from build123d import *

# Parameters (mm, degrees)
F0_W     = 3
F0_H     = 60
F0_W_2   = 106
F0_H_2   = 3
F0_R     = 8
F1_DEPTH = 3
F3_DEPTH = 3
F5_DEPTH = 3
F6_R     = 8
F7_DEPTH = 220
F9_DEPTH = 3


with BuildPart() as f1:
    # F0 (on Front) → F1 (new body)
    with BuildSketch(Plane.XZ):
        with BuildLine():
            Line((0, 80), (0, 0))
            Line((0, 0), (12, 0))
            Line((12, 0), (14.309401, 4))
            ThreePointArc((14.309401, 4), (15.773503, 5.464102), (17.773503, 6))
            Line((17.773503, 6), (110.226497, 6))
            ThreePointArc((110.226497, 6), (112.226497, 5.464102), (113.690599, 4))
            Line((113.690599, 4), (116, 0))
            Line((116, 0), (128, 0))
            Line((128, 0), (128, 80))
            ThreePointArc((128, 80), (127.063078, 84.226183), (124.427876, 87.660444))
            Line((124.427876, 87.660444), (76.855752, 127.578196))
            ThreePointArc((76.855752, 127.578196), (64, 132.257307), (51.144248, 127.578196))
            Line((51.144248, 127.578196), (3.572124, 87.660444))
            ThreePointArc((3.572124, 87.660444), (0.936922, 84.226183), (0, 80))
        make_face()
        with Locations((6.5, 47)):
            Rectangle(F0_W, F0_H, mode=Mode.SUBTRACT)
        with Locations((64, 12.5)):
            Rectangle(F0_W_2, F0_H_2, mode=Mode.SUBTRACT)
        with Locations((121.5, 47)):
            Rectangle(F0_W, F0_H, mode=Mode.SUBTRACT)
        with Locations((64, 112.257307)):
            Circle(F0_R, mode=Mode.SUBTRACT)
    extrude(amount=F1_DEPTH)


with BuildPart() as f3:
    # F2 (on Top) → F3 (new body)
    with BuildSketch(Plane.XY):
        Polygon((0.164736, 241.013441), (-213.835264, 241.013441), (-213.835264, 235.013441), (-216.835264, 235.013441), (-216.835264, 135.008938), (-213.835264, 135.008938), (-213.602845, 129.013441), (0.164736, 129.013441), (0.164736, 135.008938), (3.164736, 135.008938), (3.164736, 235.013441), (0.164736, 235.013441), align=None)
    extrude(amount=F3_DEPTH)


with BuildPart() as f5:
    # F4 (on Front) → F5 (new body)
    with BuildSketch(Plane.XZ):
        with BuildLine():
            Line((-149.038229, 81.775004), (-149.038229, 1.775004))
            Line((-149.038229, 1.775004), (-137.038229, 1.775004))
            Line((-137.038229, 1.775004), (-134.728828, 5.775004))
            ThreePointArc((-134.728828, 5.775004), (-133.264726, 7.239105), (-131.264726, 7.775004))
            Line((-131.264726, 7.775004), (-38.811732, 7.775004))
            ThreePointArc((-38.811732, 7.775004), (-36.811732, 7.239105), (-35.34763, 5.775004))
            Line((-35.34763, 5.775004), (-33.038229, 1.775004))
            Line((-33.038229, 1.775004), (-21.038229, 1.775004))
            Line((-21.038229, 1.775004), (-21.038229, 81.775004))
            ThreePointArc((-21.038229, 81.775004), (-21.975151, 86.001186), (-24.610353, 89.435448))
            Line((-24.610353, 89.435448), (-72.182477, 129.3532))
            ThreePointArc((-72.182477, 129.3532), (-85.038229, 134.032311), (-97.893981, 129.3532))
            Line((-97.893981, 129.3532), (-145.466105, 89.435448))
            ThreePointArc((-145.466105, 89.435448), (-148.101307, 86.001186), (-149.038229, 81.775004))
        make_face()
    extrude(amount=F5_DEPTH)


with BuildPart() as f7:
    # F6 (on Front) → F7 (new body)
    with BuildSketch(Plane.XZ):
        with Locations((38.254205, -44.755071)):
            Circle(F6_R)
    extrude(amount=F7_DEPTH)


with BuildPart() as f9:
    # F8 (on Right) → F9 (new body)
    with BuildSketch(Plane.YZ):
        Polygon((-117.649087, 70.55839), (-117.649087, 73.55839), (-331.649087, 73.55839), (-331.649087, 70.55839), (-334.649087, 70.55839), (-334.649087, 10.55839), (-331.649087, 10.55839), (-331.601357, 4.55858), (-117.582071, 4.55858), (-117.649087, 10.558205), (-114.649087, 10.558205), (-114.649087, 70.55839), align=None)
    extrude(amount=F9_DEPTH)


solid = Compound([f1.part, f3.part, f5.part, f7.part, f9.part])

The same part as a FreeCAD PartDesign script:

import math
import FreeCAD as App
import Part
import Sketcher
from FreeCAD import Vector
Q = App.Units.Quantity


def add_polygon(sketch, points):
    """Adds a closed chain of lines whose ends are joined by coincident constraints."""
    first, n = sketch.GeometryCount, len(points)
    for a, b in zip(points, points[1:] + points[:1]):
        sketch.addGeometry(Part.LineSegment(App.Vector(*a, 0), App.Vector(*b, 0)), False)
    for i in range(n):
        sketch.addConstraint(Sketcher.Constraint("Coincident", first + i, 2, first + (i + 1) % n, 1))

doc = App.newDocument("Part")
body = doc.addObject("PartDesign::Body", "Body")

# Sketch on XZ plane
sketch1 = body.newObject("Sketcher::SketchObject", "Sketch")
sketch1.AttachmentSupport = (doc.getObject("XZ_Plane"), [""])
sketch1.MapMode = "FlatFace"
sketch1.addGeometry(Part.LineSegment(Vector(0, 80, 0), Vector(0, 0, 0)), False)  # 0
sketch1.addGeometry(Part.LineSegment(Vector(0, 0, 0), Vector(12, 0, 0)), False)  # 1
sketch1.addGeometry(Part.LineSegment(Vector(12, 0, 0), Vector(14.3, 4, 0)), False)  # 2
sketch1.addGeometry(Part.ArcOfCircle(Part.Circle(Vector(17.8, 2, 0), Vector(0, 0, 1), 4), math.radians(90), math.radians(150)), False)  # 3
sketch1.addGeometry(Part.LineSegment(Vector(17.8, 6, 0), Vector(110.2, 6, 0)), False)  # 4
sketch1.addGeometry(Part.ArcOfCircle(Part.Circle(Vector(110.2, 2, 0), Vector(0, 0, 1), 4), math.radians(30), math.radians(90)), False)  # 5
sketch1.addGeometry(Part.LineSegment(Vector(113.7, 4, 0), Vector(116, 0, 0)), False)  # 6
sketch1.addGeometry(Part.LineSegment(Vector(116, 0, 0), Vector(128, 0, 0)), False)  # 7
sketch1.addGeometry(Part.LineSegment(Vector(128, 0, 0), Vector(128, 80, 0)), False)  # 8
sketch1.addGeometry(Part.ArcOfCircle(Part.Circle(Vector(118, 80, 0), Vector(0, 0, 1), 10), math.radians(0), math.radians(50)), False)  # 9
sketch1.addGeometry(Part.LineSegment(Vector(124.4, 87.7, 0), Vector(76.9, 127.6, 0)), False)  # 10
sketch1.addGeometry(Part.ArcOfCircle(Part.Circle(Vector(64, 112.3, 0), Vector(0, 0, 1), 20), math.radians(50), math.radians(130)), False)  # 11
sketch1.addGeometry(Part.LineSegment(Vector(51.1, 127.6, 0), Vector(3.6, 87.7, 0)), False)  # 12
sketch1.addGeometry(Part.ArcOfCircle(Part.Circle(Vector(10, 80, 0), Vector(0, 0, 1), 10), math.radians(130), math.radians(180)), False)  # 13
add_polygon(sketch1, [(8, 17), (5, 17), (5, 77), (8, 77)])  # lines 14-17
add_polygon(sketch1, [(117, 11), (11, 11), (11, 14), (117, 14)])  # lines 18-21
add_polygon(sketch1, [(123, 17), (120, 17), (120, 77), (123, 77)])  # lines 22-25
sketch1.addGeometry(Part.Circle(Vector(64, 112.3, 0), Vector(0, 0, 1), 8), False)  # 26
sketch1.addConstraint([
    Sketcher.Constraint("Coincident", 0, 2, 1, 1),
    Sketcher.Constraint("Coincident", 1, 2, 2, 1),
    Sketcher.Constraint("Tangent", 2, 2, 3, 2),
    Sketcher.Constraint("Tangent", 3, 1, 4, 1),
    Sketcher.Constraint("Tangent", 4, 2, 5, 2),
    Sketcher.Constraint("Tangent", 5, 1, 6, 1),
    Sketcher.Constraint("Coincident", 6, 2, 7, 1),
    Sketcher.Constraint("Coincident", 7, 2, 8, 1),
    Sketcher.Constraint("Tangent", 8, 2, 9, 1),
    Sketcher.Constraint("Tangent", 9, 2, 10, 1),
    Sketcher.Constraint("Tangent", 10, 2, 11, 1),
    Sketcher.Constraint("Tangent", 11, 2, 12, 1),
    Sketcher.Constraint("Tangent", 12, 2, 13, 1),
    Sketcher.Constraint("Tangent", 13, 2, 0, 1),
    Sketcher.Constraint("Vertical", 0),
    Sketcher.Constraint("Horizontal", 1),
    Sketcher.Constraint("Horizontal", 4),
    Sketcher.Constraint("Horizontal", 7),
    Sketcher.Constraint("Vertical", 8),
    Sketcher.Constraint("Horizontal", 14),
    Sketcher.Constraint("Vertical", 15),
    Sketcher.Constraint("Horizontal", 16),
    Sketcher.Constraint("Vertical", 17),
    Sketcher.Constraint("Horizontal", 18),
    Sketcher.Constraint("Vertical", 19),
    Sketcher.Constraint("Horizontal", 20),
    Sketcher.Constraint("Vertical", 21),
    Sketcher.Constraint("Horizontal", 22),
    Sketcher.Constraint("Vertical", 23),
    Sketcher.Constraint("Horizontal", 24),
    Sketcher.Constraint("Vertical", 25),
    Sketcher.Constraint("Coincident", 0, 2, -1, 1),
    Sketcher.Constraint("Coincident", 26, 3, 11, 3),
    Sketcher.Constraint("Equal", 3, 5),
    Sketcher.Constraint("Equal", 9, 13),
    Sketcher.Constraint("PointOnObject", 6, 2, -1),
    Sketcher.Constraint("Horizontal", 9, 3, 13, 3),
    Sketcher.Constraint("Horizontal", 2, 2, 5, 1),
    Sketcher.Constraint("Horizontal", 10, 2, 11, 2),
    Sketcher.Constraint("Horizontal", 17, 2, 22, 2),
    Sketcher.Constraint("Horizontal", 16, 2, 23, 2),
    Sketcher.Constraint("Equal", 1, 7),
    Sketcher.Constraint("Equal", 16, 22),
    Sketcher.Constraint("Equal", 24, 19),
    Sketcher.Constraint("Diameter", 26, Q("16 mm")),
    Sketcher.Constraint("Radius", 3, Q("3.999999 mm")),
    Sketcher.Constraint("Radius", 11, Q("20 mm")),
    Sketcher.Constraint("DistanceX", 1, 1, 1, 2, Q("12 mm")),
    Sketcher.Constraint("DistanceX", 14, 2, 14, 1, Q("3 mm")),
    Sketcher.Constraint("DistanceX", 18, 2, 18, 1, Q("106 mm")),
    Sketcher.Constraint("DistanceY", 0, 2, 0, 1, Q("80 mm")),
    Sketcher.Constraint("DistanceY", 15, 1, 15, 2, Q("60 mm")),
    Sketcher.Constraint("Angle", 2, Q("60.000001 deg")),
    Sketcher.Constraint("Angle", 10, Q("140 deg")),
    Sketcher.Constraint("DistanceY", -1, 1, 3, 3, Q("2.000001 mm")),
    Sketcher.Constraint("DistanceX", -1, 1, 11, 3, Q("64 mm")),
    Sketcher.Constraint("DistanceX", -1, 1, 14, 2, Q("5 mm")),
    Sketcher.Constraint("DistanceY", -1, 1, 14, 2, Q("17 mm")),
    Sketcher.Constraint("DistanceX", -1, 1, 18, 2, Q("11 mm")),
    Sketcher.Constraint("DistanceY", -1, 1, 18, 2, Q("11 mm")),
    Sketcher.Constraint("DistanceX", -1, 1, 22, 2, Q("120 mm")),
    Sketcher.Constraint("Radius", 9, Q("9.999995 mm")),
])
pad1 = body.newObject("PartDesign::Pad", "Pad")
pad1.Profile = sketch1
pad1.Length = 3
body2 = doc.addObject("PartDesign::Body", "Body001")

# Sketch on XY plane
sketch2 = body2.newObject("Sketcher::SketchObject", "Sketch001")
sketch2.AttachmentSupport = (doc.getObject("XY_Plane001"), [""])
sketch2.MapMode = "FlatFace"
add_polygon(sketch2, [(0.2, 241), (-213.8, 241), (-213.8, 235), (-216.8, 235), (-216.8, 135), (-213.8, 135), (-213.6, 129), (0.2, 129), (0.2, 135), (3.2, 135), (3.2, 235), (0.2, 235)])  # lines 0-11
sketch2.addConstraint([
    Sketcher.Constraint("Horizontal", 0),
    Sketcher.Constraint("Vertical", 1),
    Sketcher.Constraint("Horizontal", 2),
    Sketcher.Constraint("Vertical", 3),
    Sketcher.Constraint("Horizontal", 4),
    Sketcher.Constraint("Horizontal", 6),
    Sketcher.Constraint("Vertical", 7),
    Sketcher.Constraint("Horizontal", 8),
    Sketcher.Constraint("Vertical", 9),
    Sketcher.Constraint("Horizontal", 10),
    Sketcher.Constraint("Vertical", 11),
    Sketcher.Constraint("Horizontal", 4, 2, 7, 2),
    Sketcher.Constraint("Horizontal", 2, 2, 9, 2),
    Sketcher.Constraint("Vertical", 1, 2, 4, 2),
    Sketcher.Constraint("Vertical", 7, 2, 10, 2),
    Sketcher.Constraint("Equal", 4, 8),
    Sketcher.Constraint("DistanceX", 0, 2, 0, 1, Q("214 mm")),
    Sketcher.Constraint("DistanceX", 2, 2, 2, 1, Q("3 mm")),
    Sketcher.Constraint("DistanceY", 1, 2, 1, 1, Q("6 mm")),
    Sketcher.Constraint("Distance", 5, Q("6 mm")),
    Sketcher.Constraint("DistanceY", 5, 2, 1, 2, Q("106 mm")),
    Sketcher.Constraint("Angle", 5, Q("-87.780007 deg")),
    Sketcher.Constraint("DistanceY", -1, 1, 0, 2, Q("241.013441 mm")),
    Sketcher.Constraint("DistanceX", 0, 2, -1, 1, Q("213.835264 mm")),
])
pad2 = body2.newObject("PartDesign::Pad", "Pad001")
pad2.Profile = sketch2
pad2.Length = 3
body3 = doc.addObject("PartDesign::Body", "Body002")

# Sketch on XZ plane
sketch3 = body3.newObject("Sketcher::SketchObject", "Sketch002")
sketch3.AttachmentSupport = (doc.getObject("XZ_Plane002"), [""])
sketch3.MapMode = "FlatFace"
sketch3.addGeometry([
    Part.LineSegment(Vector(-149, 81.8, 0), Vector(-149, 1.8, 0)),  # 0
    Part.LineSegment(Vector(-149, 1.8, 0), Vector(-137, 1.8, 0)),  # 1
    Part.LineSegment(Vector(-137, 1.8, 0), Vector(-134.7, 5.8, 0)),  # 2
    Part.ArcOfCircle(Part.Circle(Vector(-131.3, 3.8, 0), Vector(0, 0, 1), 4), math.radians(90), math.radians(150)),  # 3
    Part.LineSegment(Vector(-131.3, 7.8, 0), Vector(-38.8, 7.8, 0)),  # 4
    Part.ArcOfCircle(Part.Circle(Vector(-38.8, 3.8, 0), Vector(0, 0, 1), 4), math.radians(30), math.radians(90)),  # 5
    Part.LineSegment(Vector(-35.3, 5.8, 0), Vector(-33, 1.8, 0)),  # 6
    Part.LineSegment(Vector(-33, 1.8, 0), Vector(-21, 1.8, 0)),  # 7
    Part.LineSegment(Vector(-21, 1.8, 0), Vector(-21, 81.8, 0)),  # 8
    Part.ArcOfCircle(Part.Circle(Vector(-31, 81.8, 0), Vector(0, 0, 1), 10), math.radians(0), math.radians(50)),  # 9
    Part.LineSegment(Vector(-24.6, 89.4, 0), Vector(-72.2, 129.4, 0)),  # 10
    Part.ArcOfCircle(Part.Circle(Vector(-85, 114, 0), Vector(0, 0, 1), 20), math.radians(50), math.radians(130)),  # 11
    Part.LineSegment(Vector(-97.9, 129.4, 0), Vector(-145.5, 89.4, 0)),  # 12
    Part.ArcOfCircle(Part.Circle(Vector(-139, 81.8, 0), Vector(0, 0, 1), 10), math.radians(130), math.radians(180)),  # 13
], False)
sketch3.addConstraint([
    Sketcher.Constraint("Coincident", 0, 2, 1, 1),
    Sketcher.Constraint("Coincident", 1, 2, 2, 1),
    Sketcher.Constraint("Tangent", 2, 2, 3, 2),
    Sketcher.Constraint("Tangent", 3, 1, 4, 1),
    Sketcher.Constraint("Tangent", 4, 2, 5, 2),
    Sketcher.Constraint("Tangent", 5, 1, 6, 1),
    Sketcher.Constraint("Coincident", 6, 2, 7, 1),
    Sketcher.Constraint("Coincident", 7, 2, 8, 1),
    Sketcher.Constraint("Tangent", 8, 2, 9, 1),
    Sketcher.Constraint("Tangent", 9, 2, 10, 1),
    Sketcher.Constraint("Tangent", 10, 2, 11, 1),
    Sketcher.Constraint("Tangent", 11, 2, 12, 1),
    Sketcher.Constraint("Tangent", 12, 2, 13, 1),
    Sketcher.Constraint("Tangent", 13, 2, 0, 1),
    Sketcher.Constraint("Vertical", 0),
    Sketcher.Constraint("Horizontal", 1),
    Sketcher.Constraint("Horizontal", 4),
    Sketcher.Constraint("Horizontal", 7),
    Sketcher.Constraint("Vertical", 8),
    Sketcher.Constraint("Equal", 3, 5),
    Sketcher.Constraint("Equal", 9, 13),
    Sketcher.Constraint("Horizontal", 9, 3, 13, 3),
    Sketcher.Constraint("Horizontal", 2, 2, 5, 1),
    Sketcher.Constraint("Horizontal", 1, 2, 6, 2),
    Sketcher.Constraint("Horizontal", 10, 2, 11, 2),
    Sketcher.Constraint("Equal", 1, 7),
    Sketcher.Constraint("Radius", 9, Q("9.999999 mm")),
    Sketcher.Constraint("Radius", 11, Q("20 mm")),
    Sketcher.Constraint("DistanceX", 1, 1, 1, 2, Q("12 mm")),
    Sketcher.Constraint("DistanceY", 0, 2, 0, 1, Q("80 mm")),
    Sketcher.Constraint("Angle", 2, Q("60.000001 deg")),
    Sketcher.Constraint("Angle", 10, Q("140 deg")),
    Sketcher.Constraint("DistanceX", 11, 3, 9, 3, Q("54.000001 mm")),
    Sketcher.Constraint("DistanceY", 1, 2, 2, 2, Q("4 mm")),
    Sketcher.Constraint("DistanceY", 2, 2, 3, 1, Q("2 mm")),
    Sketcher.Constraint("DistanceY", -1, 1, 3, 3, Q("3.774999 mm")),
    Sketcher.Constraint("DistanceX", 9, 3, -1, 1, Q("31.038228 mm")),
])
pad3 = body3.newObject("PartDesign::Pad", "Pad002")
pad3.Profile = sketch3
pad3.Length = 3
body4 = doc.addObject("PartDesign::Body", "Body003")

# Sketch on XZ plane
sketch4 = body4.newObject("Sketcher::SketchObject", "Sketch003")
sketch4.AttachmentSupport = (doc.getObject("XZ_Plane003"), [""])
sketch4.MapMode = "FlatFace"
sketch4.addGeometry(Part.Circle(Vector(38, -45, 0), Vector(0, 0, 1), 8), False)
sketch4.addConstraint([
    Sketcher.Constraint("Diameter", 0, Q("16 mm")),
    Sketcher.Constraint("DistanceY", 0, 3, -1, 1, Q("44.755071 mm")),
    Sketcher.Constraint("DistanceX", -1, 1, 0, 3, Q("38.254205 mm")),
])
pad4 = body4.newObject("PartDesign::Pad", "Pad003")
pad4.Profile = sketch4
pad4.Length = 220
body5 = doc.addObject("PartDesign::Body", "Body004")

# Sketch on YZ plane
sketch5 = body5.newObject("Sketcher::SketchObject", "Sketch004")
sketch5.AttachmentSupport = (doc.getObject("YZ_Plane004"), [""])
sketch5.MapMode = "FlatFace"
add_polygon(sketch5, [(-117.649087, 70.55839), (-117.649087, 73.55839), (-331.649087, 73.55839), (-331.649087, 70.55839), (-334.649087, 70.55839), (-334.649087, 10.55839), (-331.649087, 10.55839), (-331.601357, 4.55858), (-117.582071, 4.55858), (-117.649087, 10.558205), (-114.649087, 10.558205), (-114.649087, 70.55839)])  # lines 0-11
sketch5.addConstraint([
    Sketcher.Constraint("Vertical", 0),
    Sketcher.Constraint("Horizontal", 1),
    Sketcher.Constraint("Vertical", 2),
    Sketcher.Constraint("Horizontal", 3),
    Sketcher.Constraint("Vertical", 4),
    Sketcher.Constraint("Horizontal", 5),
    Sketcher.Constraint("Horizontal", 7),
    Sketcher.Constraint("Horizontal", 9),
    Sketcher.Constraint("Vertical", 10),
    Sketcher.Constraint("Horizontal", 11),
    Sketcher.Constraint("Horizontal", 3, 2, 10, 2),
    Sketcher.Constraint("Vertical", 2, 2, 5, 2),
    Sketcher.Constraint("Vertical", 0, 2, 8, 2),
    Sketcher.Constraint("Equal", 5, 9),
    Sketcher.Constraint("Equal", 11, 0),
    Sketcher.Constraint("Equal", 6, 8),
    Sketcher.Constraint("DistanceX", 1, 2, 1, 1, Q("214 mm")),
    Sketcher.Constraint("DistanceX", 3, 2, 3, 1, Q("3 mm")),
    Sketcher.Constraint("DistanceY", 4, 2, 4, 1, Q("60 mm")),
    Sketcher.Constraint("Distance", 6, Q("6 mm")),
    Sketcher.Constraint("DistanceX", 7, 1, 7, 2, Q("214.019286 mm")),
    Sketcher.Constraint("DistanceY", -1, 1, 0, 2, Q("73.55839 mm")),
    Sketcher.Constraint("DistanceY", -1, 1, 6, 2, Q("4.55858 mm")),
    Sketcher.Constraint("DistanceX", 7, 2, -1, 1, Q("117.582071 mm")),
])
pad5 = body5.newObject("PartDesign::Pad", "Pad004")
pad5.Profile = sketch5
pad5.Length = 3

doc.recompute()
